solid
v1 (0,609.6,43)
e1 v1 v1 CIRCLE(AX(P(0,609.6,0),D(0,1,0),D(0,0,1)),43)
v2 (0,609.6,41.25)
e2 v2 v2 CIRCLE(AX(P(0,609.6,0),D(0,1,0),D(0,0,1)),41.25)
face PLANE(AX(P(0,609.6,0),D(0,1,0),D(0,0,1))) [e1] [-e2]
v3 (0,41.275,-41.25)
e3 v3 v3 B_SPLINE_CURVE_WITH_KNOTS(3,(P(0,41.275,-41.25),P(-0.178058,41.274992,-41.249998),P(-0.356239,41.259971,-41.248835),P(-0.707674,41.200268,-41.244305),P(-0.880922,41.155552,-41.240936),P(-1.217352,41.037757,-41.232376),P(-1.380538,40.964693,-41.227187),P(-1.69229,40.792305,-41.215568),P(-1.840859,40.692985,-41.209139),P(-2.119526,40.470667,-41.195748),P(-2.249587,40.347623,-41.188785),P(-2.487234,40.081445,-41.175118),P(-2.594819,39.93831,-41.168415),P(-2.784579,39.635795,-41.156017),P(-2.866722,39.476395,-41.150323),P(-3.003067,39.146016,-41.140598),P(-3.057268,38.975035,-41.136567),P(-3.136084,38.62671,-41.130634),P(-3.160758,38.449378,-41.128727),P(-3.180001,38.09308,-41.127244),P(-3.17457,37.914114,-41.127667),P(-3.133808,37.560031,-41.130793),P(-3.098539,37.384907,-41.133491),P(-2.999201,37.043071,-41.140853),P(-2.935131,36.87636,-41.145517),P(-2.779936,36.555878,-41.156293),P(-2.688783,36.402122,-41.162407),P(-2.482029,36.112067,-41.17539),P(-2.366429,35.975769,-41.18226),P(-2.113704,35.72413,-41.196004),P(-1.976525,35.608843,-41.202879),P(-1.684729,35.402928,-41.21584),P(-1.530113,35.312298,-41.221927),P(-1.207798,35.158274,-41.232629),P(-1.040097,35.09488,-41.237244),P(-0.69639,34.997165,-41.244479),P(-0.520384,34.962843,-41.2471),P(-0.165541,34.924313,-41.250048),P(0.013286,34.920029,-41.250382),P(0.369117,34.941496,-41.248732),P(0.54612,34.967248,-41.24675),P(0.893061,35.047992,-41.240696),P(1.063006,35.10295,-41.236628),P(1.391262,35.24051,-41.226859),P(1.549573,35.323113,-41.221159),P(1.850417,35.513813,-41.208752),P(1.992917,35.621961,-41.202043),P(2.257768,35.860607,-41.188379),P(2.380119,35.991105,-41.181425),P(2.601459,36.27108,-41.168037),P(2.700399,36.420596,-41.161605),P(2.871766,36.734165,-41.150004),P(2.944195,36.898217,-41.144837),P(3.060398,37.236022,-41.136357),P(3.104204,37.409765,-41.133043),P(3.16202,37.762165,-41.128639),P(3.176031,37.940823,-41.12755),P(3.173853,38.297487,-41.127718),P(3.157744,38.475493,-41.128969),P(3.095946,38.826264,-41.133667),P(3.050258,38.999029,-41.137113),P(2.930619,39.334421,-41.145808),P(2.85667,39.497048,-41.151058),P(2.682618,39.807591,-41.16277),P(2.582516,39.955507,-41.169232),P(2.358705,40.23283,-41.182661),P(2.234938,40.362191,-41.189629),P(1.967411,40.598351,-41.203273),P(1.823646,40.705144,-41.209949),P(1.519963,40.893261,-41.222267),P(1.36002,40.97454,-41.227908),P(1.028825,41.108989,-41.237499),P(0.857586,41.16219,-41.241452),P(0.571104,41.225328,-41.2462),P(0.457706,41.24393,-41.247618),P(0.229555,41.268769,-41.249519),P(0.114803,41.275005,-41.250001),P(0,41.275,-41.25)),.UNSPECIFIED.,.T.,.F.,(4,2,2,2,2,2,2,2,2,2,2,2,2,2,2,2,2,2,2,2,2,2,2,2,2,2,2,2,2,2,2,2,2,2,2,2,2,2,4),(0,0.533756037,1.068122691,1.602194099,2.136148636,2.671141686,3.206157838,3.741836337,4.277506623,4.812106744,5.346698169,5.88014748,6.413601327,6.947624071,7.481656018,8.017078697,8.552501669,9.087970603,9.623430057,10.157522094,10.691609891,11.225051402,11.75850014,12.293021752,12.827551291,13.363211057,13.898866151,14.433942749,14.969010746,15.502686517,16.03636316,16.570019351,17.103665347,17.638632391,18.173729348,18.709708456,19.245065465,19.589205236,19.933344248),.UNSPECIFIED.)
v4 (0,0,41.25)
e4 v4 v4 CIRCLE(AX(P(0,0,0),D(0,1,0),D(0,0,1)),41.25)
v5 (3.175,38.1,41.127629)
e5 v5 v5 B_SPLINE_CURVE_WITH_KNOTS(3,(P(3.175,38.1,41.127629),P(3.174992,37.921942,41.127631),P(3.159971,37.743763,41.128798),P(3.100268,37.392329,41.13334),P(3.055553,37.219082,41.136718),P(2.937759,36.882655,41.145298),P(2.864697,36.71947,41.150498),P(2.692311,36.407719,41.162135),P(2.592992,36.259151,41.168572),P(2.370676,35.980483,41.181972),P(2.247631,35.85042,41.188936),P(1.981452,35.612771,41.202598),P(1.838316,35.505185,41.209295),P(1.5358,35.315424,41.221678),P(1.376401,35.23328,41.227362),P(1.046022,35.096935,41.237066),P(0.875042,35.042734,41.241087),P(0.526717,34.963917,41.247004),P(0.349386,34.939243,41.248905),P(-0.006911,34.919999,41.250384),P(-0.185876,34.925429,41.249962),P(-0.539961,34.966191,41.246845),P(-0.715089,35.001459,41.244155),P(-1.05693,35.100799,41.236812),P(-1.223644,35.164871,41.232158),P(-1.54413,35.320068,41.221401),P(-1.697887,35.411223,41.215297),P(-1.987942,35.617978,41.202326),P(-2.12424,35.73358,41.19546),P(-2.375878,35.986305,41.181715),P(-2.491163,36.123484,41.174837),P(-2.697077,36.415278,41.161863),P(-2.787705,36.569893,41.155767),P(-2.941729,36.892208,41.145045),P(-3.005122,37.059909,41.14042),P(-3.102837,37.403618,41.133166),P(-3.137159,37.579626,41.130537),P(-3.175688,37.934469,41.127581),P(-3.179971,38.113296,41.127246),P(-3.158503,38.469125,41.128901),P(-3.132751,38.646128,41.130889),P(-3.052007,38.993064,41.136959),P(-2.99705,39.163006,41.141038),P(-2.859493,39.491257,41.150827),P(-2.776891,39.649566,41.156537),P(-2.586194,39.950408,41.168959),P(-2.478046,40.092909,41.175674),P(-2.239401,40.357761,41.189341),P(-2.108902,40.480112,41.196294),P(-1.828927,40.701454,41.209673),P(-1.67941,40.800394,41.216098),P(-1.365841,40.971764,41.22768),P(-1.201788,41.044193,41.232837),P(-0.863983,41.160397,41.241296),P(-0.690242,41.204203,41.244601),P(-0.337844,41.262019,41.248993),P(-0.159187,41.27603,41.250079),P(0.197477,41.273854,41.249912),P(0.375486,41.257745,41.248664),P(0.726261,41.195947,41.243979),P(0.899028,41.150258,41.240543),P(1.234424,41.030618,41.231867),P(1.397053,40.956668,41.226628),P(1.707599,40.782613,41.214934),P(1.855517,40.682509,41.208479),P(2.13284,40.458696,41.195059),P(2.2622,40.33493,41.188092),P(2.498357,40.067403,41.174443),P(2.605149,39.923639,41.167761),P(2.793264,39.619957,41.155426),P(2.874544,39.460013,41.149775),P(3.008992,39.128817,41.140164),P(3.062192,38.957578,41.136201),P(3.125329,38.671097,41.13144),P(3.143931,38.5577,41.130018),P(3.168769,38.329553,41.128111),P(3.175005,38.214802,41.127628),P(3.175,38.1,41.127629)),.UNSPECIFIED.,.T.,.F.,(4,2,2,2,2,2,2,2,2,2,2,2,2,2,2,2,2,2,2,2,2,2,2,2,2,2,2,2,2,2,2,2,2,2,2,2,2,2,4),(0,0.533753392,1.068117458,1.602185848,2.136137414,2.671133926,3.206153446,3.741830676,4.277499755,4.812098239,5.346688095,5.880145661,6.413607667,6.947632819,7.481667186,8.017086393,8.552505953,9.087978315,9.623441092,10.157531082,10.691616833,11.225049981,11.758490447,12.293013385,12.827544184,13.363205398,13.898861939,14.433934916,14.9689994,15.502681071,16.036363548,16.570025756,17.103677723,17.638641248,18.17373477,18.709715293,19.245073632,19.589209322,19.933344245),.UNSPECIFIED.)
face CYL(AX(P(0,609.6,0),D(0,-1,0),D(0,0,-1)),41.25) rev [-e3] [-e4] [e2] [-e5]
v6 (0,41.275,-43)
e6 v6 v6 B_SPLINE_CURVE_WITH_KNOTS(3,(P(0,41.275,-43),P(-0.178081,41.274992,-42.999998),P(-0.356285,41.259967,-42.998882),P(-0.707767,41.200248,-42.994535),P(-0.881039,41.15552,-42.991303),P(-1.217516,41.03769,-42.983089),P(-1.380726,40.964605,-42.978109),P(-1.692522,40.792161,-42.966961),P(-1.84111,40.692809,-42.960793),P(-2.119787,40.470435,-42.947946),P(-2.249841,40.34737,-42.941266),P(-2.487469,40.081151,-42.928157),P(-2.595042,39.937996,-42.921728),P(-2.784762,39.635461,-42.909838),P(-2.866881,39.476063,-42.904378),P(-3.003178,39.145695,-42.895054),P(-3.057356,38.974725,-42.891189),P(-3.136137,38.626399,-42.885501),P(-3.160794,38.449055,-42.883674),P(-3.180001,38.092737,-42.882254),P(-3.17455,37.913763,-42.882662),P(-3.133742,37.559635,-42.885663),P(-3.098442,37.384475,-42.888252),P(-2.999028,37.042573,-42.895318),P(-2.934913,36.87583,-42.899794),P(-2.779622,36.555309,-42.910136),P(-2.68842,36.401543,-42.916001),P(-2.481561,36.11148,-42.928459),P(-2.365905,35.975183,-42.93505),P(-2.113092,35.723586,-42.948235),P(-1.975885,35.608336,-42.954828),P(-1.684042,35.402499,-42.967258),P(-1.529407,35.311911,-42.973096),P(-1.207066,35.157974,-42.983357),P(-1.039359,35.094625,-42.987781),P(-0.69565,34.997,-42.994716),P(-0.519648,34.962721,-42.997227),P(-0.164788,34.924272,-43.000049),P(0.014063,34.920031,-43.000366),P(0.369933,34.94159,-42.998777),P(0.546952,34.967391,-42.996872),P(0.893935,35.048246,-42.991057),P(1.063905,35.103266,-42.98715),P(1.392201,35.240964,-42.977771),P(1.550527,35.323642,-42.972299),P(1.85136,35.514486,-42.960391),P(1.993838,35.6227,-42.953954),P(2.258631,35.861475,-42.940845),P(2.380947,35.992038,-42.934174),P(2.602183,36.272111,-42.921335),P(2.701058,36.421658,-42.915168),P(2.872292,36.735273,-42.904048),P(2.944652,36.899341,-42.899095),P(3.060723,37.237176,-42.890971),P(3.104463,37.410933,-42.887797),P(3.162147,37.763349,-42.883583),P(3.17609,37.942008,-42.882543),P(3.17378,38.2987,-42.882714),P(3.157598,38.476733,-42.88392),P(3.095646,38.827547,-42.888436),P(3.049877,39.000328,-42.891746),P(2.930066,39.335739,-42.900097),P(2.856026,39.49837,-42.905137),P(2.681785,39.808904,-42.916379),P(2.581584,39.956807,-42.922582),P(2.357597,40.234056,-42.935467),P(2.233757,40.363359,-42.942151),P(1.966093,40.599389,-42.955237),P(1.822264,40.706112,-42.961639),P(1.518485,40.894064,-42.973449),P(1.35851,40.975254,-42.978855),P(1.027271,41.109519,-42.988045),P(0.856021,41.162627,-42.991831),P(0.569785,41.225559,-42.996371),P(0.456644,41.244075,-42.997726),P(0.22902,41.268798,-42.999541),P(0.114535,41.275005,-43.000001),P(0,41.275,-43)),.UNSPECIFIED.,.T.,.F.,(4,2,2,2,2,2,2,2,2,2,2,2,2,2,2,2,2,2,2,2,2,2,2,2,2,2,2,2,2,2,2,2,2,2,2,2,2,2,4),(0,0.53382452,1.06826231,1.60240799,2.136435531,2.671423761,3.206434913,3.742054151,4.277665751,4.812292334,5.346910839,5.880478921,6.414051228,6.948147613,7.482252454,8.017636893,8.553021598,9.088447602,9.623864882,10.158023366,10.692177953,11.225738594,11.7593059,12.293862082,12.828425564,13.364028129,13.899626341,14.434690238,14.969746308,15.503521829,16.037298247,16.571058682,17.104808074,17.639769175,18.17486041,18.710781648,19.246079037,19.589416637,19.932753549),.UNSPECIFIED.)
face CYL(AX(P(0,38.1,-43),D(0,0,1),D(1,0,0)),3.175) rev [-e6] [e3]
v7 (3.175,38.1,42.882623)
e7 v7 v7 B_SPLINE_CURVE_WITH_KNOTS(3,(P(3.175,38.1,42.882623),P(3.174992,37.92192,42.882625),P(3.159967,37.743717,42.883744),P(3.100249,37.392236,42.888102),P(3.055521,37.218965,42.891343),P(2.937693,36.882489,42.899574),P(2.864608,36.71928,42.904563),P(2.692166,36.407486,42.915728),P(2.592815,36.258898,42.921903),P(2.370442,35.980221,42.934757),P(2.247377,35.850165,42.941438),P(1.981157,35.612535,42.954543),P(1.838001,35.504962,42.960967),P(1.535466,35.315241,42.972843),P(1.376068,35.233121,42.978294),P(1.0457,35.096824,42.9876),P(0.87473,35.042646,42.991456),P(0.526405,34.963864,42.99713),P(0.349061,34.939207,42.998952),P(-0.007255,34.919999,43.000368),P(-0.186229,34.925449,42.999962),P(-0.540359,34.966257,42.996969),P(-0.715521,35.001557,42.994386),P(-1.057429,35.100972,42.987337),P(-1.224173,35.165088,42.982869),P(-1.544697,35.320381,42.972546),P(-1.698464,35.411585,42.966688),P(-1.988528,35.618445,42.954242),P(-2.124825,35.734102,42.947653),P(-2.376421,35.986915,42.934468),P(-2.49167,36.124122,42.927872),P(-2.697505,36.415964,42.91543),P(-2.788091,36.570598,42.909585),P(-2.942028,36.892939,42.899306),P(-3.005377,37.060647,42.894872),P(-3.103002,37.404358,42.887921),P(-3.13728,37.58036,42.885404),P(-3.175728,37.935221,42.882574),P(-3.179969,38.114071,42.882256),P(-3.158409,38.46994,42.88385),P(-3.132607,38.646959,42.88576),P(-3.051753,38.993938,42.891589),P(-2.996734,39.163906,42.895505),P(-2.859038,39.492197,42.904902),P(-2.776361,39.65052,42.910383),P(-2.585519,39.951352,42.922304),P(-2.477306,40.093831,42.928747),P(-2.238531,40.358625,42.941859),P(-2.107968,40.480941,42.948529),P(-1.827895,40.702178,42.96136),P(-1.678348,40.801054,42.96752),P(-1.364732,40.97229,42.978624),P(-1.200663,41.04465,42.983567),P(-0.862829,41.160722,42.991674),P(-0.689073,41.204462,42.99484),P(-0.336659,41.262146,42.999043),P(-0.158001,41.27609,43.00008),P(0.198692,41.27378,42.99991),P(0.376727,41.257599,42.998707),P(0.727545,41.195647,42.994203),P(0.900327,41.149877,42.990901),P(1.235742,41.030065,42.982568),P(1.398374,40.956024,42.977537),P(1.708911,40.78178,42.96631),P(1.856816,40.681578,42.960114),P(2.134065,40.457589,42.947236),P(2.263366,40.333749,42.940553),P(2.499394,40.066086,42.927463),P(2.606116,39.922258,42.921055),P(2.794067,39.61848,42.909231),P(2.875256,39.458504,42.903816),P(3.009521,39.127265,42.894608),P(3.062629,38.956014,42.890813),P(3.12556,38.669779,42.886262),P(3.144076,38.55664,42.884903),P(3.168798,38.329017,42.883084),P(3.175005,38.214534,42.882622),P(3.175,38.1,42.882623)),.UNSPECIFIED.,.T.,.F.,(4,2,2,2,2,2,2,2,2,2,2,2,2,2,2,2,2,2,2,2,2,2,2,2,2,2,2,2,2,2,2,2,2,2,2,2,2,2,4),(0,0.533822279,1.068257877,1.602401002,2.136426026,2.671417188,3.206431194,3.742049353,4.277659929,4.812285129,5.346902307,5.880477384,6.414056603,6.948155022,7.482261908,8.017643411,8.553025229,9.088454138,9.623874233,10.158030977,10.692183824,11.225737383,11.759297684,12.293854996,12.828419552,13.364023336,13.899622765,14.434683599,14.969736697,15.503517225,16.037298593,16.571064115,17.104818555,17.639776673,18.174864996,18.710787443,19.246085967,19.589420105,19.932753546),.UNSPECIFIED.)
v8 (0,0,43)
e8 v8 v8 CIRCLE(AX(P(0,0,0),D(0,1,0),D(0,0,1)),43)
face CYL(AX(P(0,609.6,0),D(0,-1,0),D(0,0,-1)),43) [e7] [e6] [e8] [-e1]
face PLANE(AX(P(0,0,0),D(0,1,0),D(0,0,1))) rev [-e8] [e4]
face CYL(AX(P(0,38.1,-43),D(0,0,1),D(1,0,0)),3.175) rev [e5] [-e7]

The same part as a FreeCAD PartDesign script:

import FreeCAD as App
import Part
import Sketcher

doc = App.newDocument("Part")
body = doc.addObject("PartDesign::Body", "Body")

# Sketch on XZ plane
sketch1 = doc.addObject("Sketcher::SketchObject", "Sketch")
body.addObject(sketch1)
sketch1.AttachmentSupport = (doc.XZ_Plane, [""])
sketch1.MapMode = "FlatFace"
sketch1.addGeometry([
    Part.Circle(App.Vector(0, 0, 0), App.Vector(0, 0, 1), 43),
    Part.Circle(App.Vector(0, 0, 0), App.Vector(0, 0, 1), 41),
], False)
sketch1.addConstraint([
    Sketcher.Constraint("Coincident", 0, 3, -1, 1),
    Sketcher.Constraint("Coincident", 1, 3, -1, 1),
    Sketcher.Constraint("Diameter", 0, 86.0),
    Sketcher.Constraint("Diameter", 1, 82.5),
])
pad1 = doc.addObject("PartDesign::Pad", "Pad")
body.addObject(pad1)
pad1.Profile = sketch1
pad1.Length = 609.6
pad1.Reversed = True

# Sketch on XY plane
sketch2 = doc.addObject("Sketcher::SketchObject", "Sketch001")
body.addObject(sketch2)
sketch2.AttachmentSupport = (doc.XY_Plane, [""])
sketch2.MapMode = "FlatFace"
sketch2.addGeometry(Part.Circle(App.Vector(0, 38.1, 0), App.Vector(0, 0, 1), 3.2), False)
sketch2.addConstraint([
    Sketcher.Constraint("PointOnObject", 0, 3, -2),
    Sketcher.Constraint("Diameter", 0, 6.35),
    Sketcher.Constraint("DistanceY", -1, 1, 0, 3, 38.1),
])
pocket1 = doc.addObject("PartDesign::Pocket", "Pocket")
body.addObject(pocket1)
pocket1.Profile = sketch2
pocket1.Type = "ThroughAll"
pocket1.Midplane = True

doc.recompute()
